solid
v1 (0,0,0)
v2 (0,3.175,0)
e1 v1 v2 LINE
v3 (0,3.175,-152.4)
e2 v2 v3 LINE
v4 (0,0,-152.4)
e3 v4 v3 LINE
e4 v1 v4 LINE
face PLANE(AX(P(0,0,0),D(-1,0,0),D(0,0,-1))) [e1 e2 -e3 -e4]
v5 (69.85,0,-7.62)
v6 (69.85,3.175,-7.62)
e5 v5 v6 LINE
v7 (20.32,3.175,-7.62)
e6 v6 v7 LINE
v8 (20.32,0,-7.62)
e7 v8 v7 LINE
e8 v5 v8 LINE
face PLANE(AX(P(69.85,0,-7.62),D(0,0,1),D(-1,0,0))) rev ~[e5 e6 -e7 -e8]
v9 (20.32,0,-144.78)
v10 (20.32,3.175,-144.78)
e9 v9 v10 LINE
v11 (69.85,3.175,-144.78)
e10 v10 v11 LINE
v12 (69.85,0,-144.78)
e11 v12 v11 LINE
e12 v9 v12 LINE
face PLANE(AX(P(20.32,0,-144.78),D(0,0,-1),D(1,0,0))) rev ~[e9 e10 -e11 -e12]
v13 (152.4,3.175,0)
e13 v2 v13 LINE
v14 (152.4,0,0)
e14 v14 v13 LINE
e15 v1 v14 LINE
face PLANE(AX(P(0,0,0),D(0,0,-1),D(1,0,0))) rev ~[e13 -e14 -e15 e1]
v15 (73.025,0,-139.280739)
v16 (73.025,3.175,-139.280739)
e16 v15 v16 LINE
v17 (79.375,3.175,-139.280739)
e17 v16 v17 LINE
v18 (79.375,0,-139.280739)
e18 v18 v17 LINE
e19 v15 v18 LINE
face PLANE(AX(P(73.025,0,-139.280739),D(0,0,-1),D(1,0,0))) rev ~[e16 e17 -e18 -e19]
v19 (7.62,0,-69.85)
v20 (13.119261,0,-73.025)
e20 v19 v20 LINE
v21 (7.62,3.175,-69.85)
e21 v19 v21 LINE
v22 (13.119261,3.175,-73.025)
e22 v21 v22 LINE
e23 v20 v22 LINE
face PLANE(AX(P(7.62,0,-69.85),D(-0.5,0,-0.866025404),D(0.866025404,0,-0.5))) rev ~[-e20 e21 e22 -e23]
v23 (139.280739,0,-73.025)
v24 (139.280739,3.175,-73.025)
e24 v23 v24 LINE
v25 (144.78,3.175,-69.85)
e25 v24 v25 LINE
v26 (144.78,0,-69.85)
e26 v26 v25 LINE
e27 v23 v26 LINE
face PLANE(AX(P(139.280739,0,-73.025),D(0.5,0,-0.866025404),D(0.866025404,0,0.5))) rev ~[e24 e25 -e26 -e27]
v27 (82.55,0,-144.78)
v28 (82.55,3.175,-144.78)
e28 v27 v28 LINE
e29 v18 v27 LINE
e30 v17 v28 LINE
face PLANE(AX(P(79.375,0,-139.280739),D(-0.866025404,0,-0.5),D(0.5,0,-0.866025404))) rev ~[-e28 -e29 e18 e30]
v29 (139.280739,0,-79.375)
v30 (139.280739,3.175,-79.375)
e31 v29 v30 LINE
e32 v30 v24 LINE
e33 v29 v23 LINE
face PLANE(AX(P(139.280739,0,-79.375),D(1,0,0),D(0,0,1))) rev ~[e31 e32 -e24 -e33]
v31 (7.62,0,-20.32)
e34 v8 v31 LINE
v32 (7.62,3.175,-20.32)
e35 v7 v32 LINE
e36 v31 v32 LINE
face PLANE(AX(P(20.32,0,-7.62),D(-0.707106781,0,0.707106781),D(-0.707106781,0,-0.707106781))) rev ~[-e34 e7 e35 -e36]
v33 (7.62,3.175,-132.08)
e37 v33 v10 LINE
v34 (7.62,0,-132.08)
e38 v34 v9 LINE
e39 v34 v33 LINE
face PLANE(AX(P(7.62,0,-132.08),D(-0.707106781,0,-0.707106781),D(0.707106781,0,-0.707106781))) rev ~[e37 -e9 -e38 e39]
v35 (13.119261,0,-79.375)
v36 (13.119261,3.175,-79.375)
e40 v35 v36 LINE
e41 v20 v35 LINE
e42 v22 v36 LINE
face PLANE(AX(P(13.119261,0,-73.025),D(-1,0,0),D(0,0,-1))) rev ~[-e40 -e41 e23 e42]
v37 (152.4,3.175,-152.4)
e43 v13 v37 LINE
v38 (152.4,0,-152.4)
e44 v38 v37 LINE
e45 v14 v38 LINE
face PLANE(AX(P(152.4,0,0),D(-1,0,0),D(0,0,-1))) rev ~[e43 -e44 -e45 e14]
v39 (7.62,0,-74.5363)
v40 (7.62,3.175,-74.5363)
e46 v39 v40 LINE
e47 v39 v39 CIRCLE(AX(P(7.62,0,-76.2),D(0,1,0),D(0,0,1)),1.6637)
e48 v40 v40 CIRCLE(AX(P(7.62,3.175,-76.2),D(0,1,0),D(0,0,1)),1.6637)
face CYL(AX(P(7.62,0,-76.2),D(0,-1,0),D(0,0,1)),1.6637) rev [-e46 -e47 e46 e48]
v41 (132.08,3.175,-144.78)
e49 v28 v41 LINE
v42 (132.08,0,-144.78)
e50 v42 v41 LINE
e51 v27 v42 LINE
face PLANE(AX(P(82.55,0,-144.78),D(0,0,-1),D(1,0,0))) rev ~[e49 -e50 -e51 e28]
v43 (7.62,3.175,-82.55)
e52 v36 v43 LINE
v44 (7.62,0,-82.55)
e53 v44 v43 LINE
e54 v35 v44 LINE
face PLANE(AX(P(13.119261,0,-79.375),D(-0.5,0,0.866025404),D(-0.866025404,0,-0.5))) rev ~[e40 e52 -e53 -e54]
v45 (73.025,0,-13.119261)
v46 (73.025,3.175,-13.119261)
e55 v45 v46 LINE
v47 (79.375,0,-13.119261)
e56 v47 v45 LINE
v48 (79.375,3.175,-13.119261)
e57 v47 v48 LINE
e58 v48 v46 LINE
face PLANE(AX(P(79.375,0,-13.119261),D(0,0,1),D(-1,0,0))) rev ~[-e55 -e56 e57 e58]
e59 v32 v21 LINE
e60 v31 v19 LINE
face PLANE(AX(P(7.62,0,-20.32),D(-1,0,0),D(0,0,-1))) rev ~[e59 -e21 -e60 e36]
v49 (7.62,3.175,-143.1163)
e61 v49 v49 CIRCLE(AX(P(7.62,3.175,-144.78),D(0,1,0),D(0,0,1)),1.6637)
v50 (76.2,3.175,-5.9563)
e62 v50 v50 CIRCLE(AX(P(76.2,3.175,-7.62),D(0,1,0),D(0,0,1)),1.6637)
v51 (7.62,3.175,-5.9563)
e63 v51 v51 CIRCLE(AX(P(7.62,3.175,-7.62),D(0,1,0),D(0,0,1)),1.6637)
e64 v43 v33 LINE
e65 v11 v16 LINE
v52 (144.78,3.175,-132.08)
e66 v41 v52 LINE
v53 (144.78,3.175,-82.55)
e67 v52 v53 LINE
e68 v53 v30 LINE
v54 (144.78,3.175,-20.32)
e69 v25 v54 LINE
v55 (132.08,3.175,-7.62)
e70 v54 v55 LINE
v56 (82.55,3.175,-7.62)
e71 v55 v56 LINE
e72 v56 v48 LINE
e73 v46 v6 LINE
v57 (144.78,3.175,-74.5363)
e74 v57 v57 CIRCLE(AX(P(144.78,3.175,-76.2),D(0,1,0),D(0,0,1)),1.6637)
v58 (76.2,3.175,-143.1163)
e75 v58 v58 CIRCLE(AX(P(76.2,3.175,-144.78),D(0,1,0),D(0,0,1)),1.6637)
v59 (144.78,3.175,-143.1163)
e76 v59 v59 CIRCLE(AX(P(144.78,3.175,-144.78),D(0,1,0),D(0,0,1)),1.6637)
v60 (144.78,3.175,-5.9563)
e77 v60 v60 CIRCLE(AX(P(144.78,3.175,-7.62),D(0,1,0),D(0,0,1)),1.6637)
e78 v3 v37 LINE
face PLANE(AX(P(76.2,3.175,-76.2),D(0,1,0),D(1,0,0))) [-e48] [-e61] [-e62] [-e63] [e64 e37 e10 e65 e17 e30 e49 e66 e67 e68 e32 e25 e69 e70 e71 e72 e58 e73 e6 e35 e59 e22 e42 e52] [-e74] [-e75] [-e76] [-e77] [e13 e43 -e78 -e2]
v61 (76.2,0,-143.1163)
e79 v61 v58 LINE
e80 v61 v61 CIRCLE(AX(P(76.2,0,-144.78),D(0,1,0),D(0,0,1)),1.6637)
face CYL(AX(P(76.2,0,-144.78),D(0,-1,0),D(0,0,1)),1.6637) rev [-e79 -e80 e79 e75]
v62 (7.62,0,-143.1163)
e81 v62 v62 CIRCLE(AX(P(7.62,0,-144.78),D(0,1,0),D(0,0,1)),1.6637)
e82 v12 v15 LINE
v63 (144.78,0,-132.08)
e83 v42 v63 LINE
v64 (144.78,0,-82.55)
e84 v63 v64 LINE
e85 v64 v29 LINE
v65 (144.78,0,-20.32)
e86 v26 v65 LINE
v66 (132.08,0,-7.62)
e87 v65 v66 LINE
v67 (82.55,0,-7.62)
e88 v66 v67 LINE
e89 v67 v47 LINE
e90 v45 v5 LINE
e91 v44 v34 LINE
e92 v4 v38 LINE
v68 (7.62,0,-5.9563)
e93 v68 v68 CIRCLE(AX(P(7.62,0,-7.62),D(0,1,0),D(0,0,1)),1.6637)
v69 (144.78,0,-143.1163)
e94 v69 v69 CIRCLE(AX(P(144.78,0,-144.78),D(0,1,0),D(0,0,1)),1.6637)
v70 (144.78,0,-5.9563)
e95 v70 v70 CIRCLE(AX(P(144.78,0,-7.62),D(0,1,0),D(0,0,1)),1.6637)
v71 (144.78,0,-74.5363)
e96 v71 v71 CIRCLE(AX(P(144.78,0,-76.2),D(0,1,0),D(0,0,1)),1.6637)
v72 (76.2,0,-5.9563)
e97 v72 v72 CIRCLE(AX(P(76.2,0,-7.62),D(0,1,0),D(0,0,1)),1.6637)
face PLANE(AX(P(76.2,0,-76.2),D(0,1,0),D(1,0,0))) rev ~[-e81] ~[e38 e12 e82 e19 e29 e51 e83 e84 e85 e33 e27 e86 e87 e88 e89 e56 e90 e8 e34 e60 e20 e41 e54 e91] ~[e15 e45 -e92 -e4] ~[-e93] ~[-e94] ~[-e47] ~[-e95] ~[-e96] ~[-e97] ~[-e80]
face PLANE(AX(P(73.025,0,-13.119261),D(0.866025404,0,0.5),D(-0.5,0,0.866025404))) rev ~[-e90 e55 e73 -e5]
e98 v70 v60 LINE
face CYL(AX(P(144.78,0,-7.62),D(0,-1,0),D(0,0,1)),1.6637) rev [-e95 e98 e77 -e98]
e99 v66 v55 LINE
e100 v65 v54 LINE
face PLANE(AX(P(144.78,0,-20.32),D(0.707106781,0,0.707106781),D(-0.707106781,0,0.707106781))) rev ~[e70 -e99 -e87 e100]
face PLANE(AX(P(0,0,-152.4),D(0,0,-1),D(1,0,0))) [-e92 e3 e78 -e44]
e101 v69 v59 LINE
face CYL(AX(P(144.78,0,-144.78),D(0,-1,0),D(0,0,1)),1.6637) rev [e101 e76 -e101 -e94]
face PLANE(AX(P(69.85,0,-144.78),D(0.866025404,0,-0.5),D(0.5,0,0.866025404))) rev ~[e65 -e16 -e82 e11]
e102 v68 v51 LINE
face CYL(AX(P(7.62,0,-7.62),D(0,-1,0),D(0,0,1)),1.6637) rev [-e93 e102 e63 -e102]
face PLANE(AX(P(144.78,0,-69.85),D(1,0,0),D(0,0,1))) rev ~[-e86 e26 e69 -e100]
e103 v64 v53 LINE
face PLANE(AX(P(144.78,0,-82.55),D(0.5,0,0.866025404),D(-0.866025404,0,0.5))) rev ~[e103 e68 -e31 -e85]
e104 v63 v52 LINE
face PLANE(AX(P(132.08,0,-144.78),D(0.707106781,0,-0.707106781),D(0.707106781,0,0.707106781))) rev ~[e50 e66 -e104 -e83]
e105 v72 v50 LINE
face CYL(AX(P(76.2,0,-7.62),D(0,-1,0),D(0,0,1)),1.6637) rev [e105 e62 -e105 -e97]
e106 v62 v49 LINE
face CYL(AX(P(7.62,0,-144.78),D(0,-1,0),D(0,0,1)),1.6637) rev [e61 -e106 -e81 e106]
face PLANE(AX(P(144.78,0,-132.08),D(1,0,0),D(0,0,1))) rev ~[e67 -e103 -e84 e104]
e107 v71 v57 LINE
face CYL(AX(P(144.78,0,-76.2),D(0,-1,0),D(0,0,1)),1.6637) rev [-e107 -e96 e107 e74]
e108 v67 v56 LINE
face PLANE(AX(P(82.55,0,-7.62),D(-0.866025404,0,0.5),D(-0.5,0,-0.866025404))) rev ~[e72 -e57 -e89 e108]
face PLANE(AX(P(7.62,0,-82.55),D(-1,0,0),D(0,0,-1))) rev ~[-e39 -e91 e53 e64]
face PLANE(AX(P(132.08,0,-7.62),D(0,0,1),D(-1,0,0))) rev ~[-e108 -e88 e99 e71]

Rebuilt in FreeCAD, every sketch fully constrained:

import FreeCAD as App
import Part
import Sketcher
Q = App.Units.Quantity

doc = App.newDocument("Part")
params = doc.addObject("Spreadsheet::Sheet", "Params")
for row, (alias, value) in enumerate([
    ("sketch1_width", "6 in"),
    ("sketch1_diameter", "0.131 in"),
    ("sketch1_width2", "1.95 in"),
    ("sketch1_width3", "0.25 in"),
    ("pad1_length", "0.125 in"),
], start=1):
    params.set(f"A{row}", alias)
    params.set(f"B{row}", "=" + value)
    params.setAlias(f"B{row}", alias)

body = doc.addObject("PartDesign::Body", "Body")

# Sketch on XZ plane
sketch1 = doc.addObject("Sketcher::SketchObject", "Sketch")
body.addObject(sketch1)
sketch1.AttachmentSupport = (doc.XZ_Plane, [""])
sketch1.MapMode = "FlatFace"
sketch1.addGeometry([
    Part.LineSegment(App.Vector(0, -152.4, 0), App.Vector(0, 0, 0)),  # 0
    Part.LineSegment(App.Vector(0, 0, 0), App.Vector(152.4, 0, 0)),  # 1
    Part.LineSegment(App.Vector(152.4, 0, 0), App.Vector(152.4, -152.4, 0)),  # 2
    Part.LineSegment(App.Vector(152.4, -152.4, 0), App.Vector(0, -152.4, 0)),  # 3
    Part.Circle(App.Vector(7.6, -7.6, 0), App.Vector(0, 0, 1), 1.7),  # 4
    Part.Circle(App.Vector(76.2, -7.6, 0), App.Vector(0, 0, 1), 1.7),  # 5
    Part.Circle(App.Vector(144.8, -7.6, 0), App.Vector(0, 0, 1), 1.7),  # 6
    Part.Circle(App.Vector(7.6, -76.2, 0), App.Vector(0, 0, 1), 1.7),  # 7
    Part.Circle(App.Vector(7.6, -144.8, 0), App.Vector(0, 0, 1), 1.7),  # 8
    Part.LineSegment(App.Vector(73, -13.1, 0), App.Vector(69.8, -7.6, 0)),  # 9
    Part.LineSegment(App.Vector(69.8, -7.6, 0), App.Vector(20.3, -7.6, 0)),  # 10
    Part.LineSegment(App.Vector(20.3, -7.6, 0), App.Vector(7.6, -20.3, 0)),  # 11
    Part.LineSegment(App.Vector(7.6, -20.3, 0), App.Vector(7.6, -69.8, 0)),  # 12
    Part.LineSegment(App.Vector(7.6, -69.8, 0), App.Vector(13.1, -73, 0)),  # 13
    Part.LineSegment(App.Vector(13.1, -73, 0), App.Vector(13.1, -79.4, 0)),  # 14
    Part.LineSegment(App.Vector(13.1, -79.4, 0), App.Vector(7.6, -82.5, 0)),  # 15
    Part.LineSegment(App.Vector(7.6, -82.5, 0), App.Vector(7.6, -132.1, 0)),  # 16
    Part.LineSegment(App.Vector(7.6, -132.1, 0), App.Vector(20.3, -144.8, 0)),  # 17
    Part.LineSegment(App.Vector(20.3, -144.8, 0), App.Vector(69.8, -144.8, 0)),  # 18
    Part.LineSegment(App.Vector(69.8, -144.8, 0), App.Vector(73, -139.3, 0)),  # 19
    Part.LineSegment(App.Vector(73, -139.3, 0), App.Vector(79.4, -139.3, 0)),  # 20
    Part.LineSegment(App.Vector(79.4, -139.3, 0), App.Vector(82.5, -144.8, 0)),  # 21
    Part.LineSegment(App.Vector(82.5, -144.8, 0), App.Vector(132.1, -144.8, 0)),  # 22
    Part.LineSegment(App.Vector(132.1, -144.8, 0), App.Vector(144.8, -132.1, 0)),  # 23
    Part.LineSegment(App.Vector(144.8, -132.1, 0), App.Vector(144.8, -82.5, 0)),  # 24
    Part.LineSegment(App.Vector(144.8, -82.5, 0), App.Vector(139.3, -79.4, 0)),  # 25
    Part.LineSegment(App.Vector(139.3, -79.4, 0), App.Vector(139.3, -73, 0)),  # 26
    Part.LineSegment(App.Vector(139.3, -73, 0), App.Vector(144.8, -69.8, 0)),  # 27
    Part.LineSegment(App.Vector(144.8, -69.8, 0), App.Vector(144.8, -20.3, 0)),  # 28
    Part.LineSegment(App.Vector(144.8, -20.3, 0), App.Vector(132.1, -7.6, 0)),  # 29
    Part.LineSegment(App.Vector(132.1, -7.6, 0), App.Vector(82.5, -7.6, 0)),  # 30
    Part.LineSegment(App.Vector(82.5, -7.6, 0), App.Vector(79.4, -13.1, 0)),  # 31
    Part.LineSegment(App.Vector(79.4, -13.1, 0), App.Vector(73, -13.1, 0)),  # 32
    Part.Circle(App.Vector(144.8, -76.2, 0), App.Vector(0, 0, 1), 1.7),  # 33
    Part.Circle(App.Vector(76.2, -144.8, 0), App.Vector(0, 0, 1), 1.7),  # 34
    Part.Circle(App.Vector(144.8, -144.8, 0), App.Vector(0, 0, 1), 1.7),  # 35
], False)
sketch1.addConstraint([
    Sketcher.Constraint("Coincident", 0, 2, 1, 1),
    Sketcher.Constraint("Coincident", 1, 2, 2, 1),
    Sketcher.Constraint("Coincident", 2, 2, 3, 1),
    Sketcher.Constraint("Coincident", 3, 2, 0, 1),
    Sketcher.Constraint("Coincident", 9, 2, 10, 1),
    Sketcher.Constraint("Coincident", 10, 2, 11, 1),
    Sketcher.Constraint("Coincident", 11, 2, 12, 1),
    Sketcher.Constraint("Coincident", 12, 2, 13, 1),
    Sketcher.Constraint("Coincident", 13, 2, 14, 1),
    Sketcher.Constraint("Coincident", 14, 2, 15, 1),
    Sketcher.Constraint("Coincident", 15, 2, 16, 1),
    Sketcher.Constraint("Coincident", 16, 2, 17, 1),
    Sketcher.Constraint("Coincident", 17, 2, 18, 1),
    Sketcher.Constraint("Coincident", 18, 2, 19, 1),
    Sketcher.Constraint("Coincident", 19, 2, 20, 1),
    Sketcher.Constraint("Coincident", 20, 2, 21, 1),
    Sketcher.Constraint("Coincident", 21, 2, 22, 1),
    Sketcher.Constraint("Coincident", 22, 2, 23, 1),
    Sketcher.Constraint("Coincident", 23, 2, 24, 1),
    Sketcher.Constraint("Coincident", 24, 2, 25, 1),
    Sketcher.Constraint("Coincident", 25, 2, 26, 1),
    Sketcher.Constraint("Coincident", 26, 2, 27, 1),
    Sketcher.Constraint("Coincident", 27, 2, 28, 1),
    Sketcher.Constraint("Coincident", 28, 2, 29, 1),
    Sketcher.Constraint("Coincident", 29, 2, 30, 1),
    Sketcher.Constraint("Coincident", 30, 2, 31, 1),
    Sketcher.Constraint("Coincident", 31, 2, 32, 1),
    Sketcher.Constraint("Coincident", 32, 2, 9, 1),
    Sketcher.Constraint("Vertical", 0),
    Sketcher.Constraint("Horizontal", 1),
    Sketcher.Constraint("Vertical", 2),
    Sketcher.Constraint("Horizontal", 3),
    Sketcher.Constraint("Horizontal", 10),
    Sketcher.Constraint("Vertical", 12),
    Sketcher.Constraint("Vertical", 14),
    Sketcher.Constraint("Vertical", 16),
    Sketcher.Constraint("Horizontal", 18),
    Sketcher.Constraint("Horizontal", 20),
    Sketcher.Constraint("Horizontal", 22),
    Sketcher.Constraint("Vertical", 24),
    Sketcher.Constraint("Vertical", 26),
    Sketcher.Constraint("Vertical", 28),
    Sketcher.Constraint("Horizontal", 30),
    Sketcher.Constraint("Horizontal", 32),
    Sketcher.Constraint("Coincident", 0, 2, -1, 1),
    Sketcher.Constraint("Equal", 4, 5),
    Sketcher.Constraint("Equal", 5, 6),
    Sketcher.Constraint("Equal", 6, 7),
    Sketcher.Constraint("Equal", 7, 8),
    Sketcher.Constraint("Equal", 8, 33),
    Sketcher.Constraint("Equal", 33, 34),
    Sketcher.Constraint("Equal", 34, 35),
    Sketcher.Constraint("Perpendicular", 9, 15),
    Sketcher.Constraint("Perpendicular", 11, 17),
    Sketcher.Constraint("Perpendicular", 13, 19),
    Sketcher.Constraint("Perpendicular", 15, 21),
    Sketcher.Constraint("Perpendicular", 17, 23),
    Sketcher.Constraint("Perpendicular", 19, 25),
    Sketcher.Constraint("Perpendicular", 21, 27),
    Sketcher.Constraint("Perpendicular", 23, 29),
    Sketcher.Constraint("Perpendicular", 25, 31),
    Sketcher.Constraint("Horizontal", 4, 3, 5, 3),
    Sketcher.Constraint("Horizontal", 5, 3, 6, 3),
    Sketcher.Constraint("Horizontal", 7, 3, 33, 3),
    Sketcher.Constraint("Horizontal", 8, 3, 34, 3),
    Sketcher.Constraint("Horizontal", 34, 3, 35, 3),
    Sketcher.Constraint("Horizontal", 6, 3, 9, 2),
    Sketcher.Constraint("Horizontal", 35, 3, 17, 2),
    Sketcher.Constraint("Horizontal", 18, 2, 21, 2),
    Sketcher.Constraint("Horizontal", 16, 2, 23, 2),
    Sketcher.Constraint("Horizontal", 15, 2, 24, 2),
    Sketcher.Constraint("Horizontal", 14, 2, 25, 2),
    Sketcher.Constraint("Horizontal", 13, 2, 26, 2),
    Sketcher.Constraint("Horizontal", 12, 2, 27, 2),
    Sketcher.Constraint("Horizontal", 11, 2, 28, 2),
    Sketcher.Constraint("Horizontal", 10, 2, 29, 2),
    Sketcher.Constraint("Vertical", 4, 3, 7, 3),
    Sketcher.Constraint("Vertical", 7, 3, 8, 3),
    Sketcher.Constraint("Vertical", 6, 3, 33, 3),
    Sketcher.Constraint("Vertical", 5, 3, 34, 3),
    Sketcher.Constraint("Vertical", 33, 3, 35, 3),
    Sketcher.Constraint("Vertical", 8, 3, 11, 2),
    Sketcher.Constraint("Vertical", 12, 2, 15, 2),
    Sketcher.Constraint("Vertical", 10, 2, 17, 2),
    Sketcher.Constraint("Vertical", 9, 2, 18, 2),
    Sketcher.Constraint("Vertical", 35, 3, 23, 2),
    Sketcher.Constraint("Vertical", 24, 2, 27, 2),
    Sketcher.Constraint("Vertical", 22, 2, 29, 2),
    Sketcher.Constraint("Vertical", 21, 2, 30, 2),
    Sketcher.Constraint("Vertical", 20, 2, 31, 2),
    Sketcher.Constraint("Equal", 18, 22),
    Sketcher.Constraint("Equal", 3, 0),
    Sketcher.Constraint("Equal", 30, 12),
    Sketcher.Constraint("Equal", 32, 14),
    Sketcher.Constraint("Equal", 12, 16),
    Sketcher.Constraint("Equal", 9, 13),
    Sketcher.Constraint("DistanceX", 1, 1, 1, 2, Q("6 in")),
    Sketcher.Constraint("Diameter", 4, Q("0.131 in")),
    Sketcher.Constraint("DistanceX", -1, 1, 5, 3, Q("3 in")),
    Sketcher.Constraint("DistanceY", 7, 3, -1, 1, Q("3 in")),
    Sketcher.Constraint("Angle", 9, Q("120 deg")),
    Sketcher.Constraint("DistanceX", 10, 2, 10, 1, Q("1.95 in")),
    Sketcher.Constraint("DistanceX", 20, 1, 20, 2, Q("0.25 in")),
    Sketcher.Constraint("DistanceX", -1, 1, 4, 3, Q("0.3 in")),
    Sketcher.Constraint("DistanceY", 4, 3, -1, 1, Q("0.3 in")),
    Sketcher.Constraint("DistanceX", -1, 1, 6, 3, Q("5.7 in")),
    Sketcher.Constraint("DistanceX", -1, 1, 10, 2, Q("0.8 in")),
])
sketch1.setExpression("Constraints[96]", "Params.sketch1_width")
sketch1.setExpression("Constraints[97]", "Params.sketch1_diameter")
sketch1.setExpression("Constraints[101]", "Params.sketch1_width2")
sketch1.setExpression("Constraints[102]", "Params.sketch1_width3")
pad1 = doc.addObject("PartDesign::Pad", "Pad")
body.addObject(pad1)
pad1.Profile = sketch1
pad1.setExpression("Length", "Params.pad1_length")
pad1.Reversed = True

doc.recompute()
